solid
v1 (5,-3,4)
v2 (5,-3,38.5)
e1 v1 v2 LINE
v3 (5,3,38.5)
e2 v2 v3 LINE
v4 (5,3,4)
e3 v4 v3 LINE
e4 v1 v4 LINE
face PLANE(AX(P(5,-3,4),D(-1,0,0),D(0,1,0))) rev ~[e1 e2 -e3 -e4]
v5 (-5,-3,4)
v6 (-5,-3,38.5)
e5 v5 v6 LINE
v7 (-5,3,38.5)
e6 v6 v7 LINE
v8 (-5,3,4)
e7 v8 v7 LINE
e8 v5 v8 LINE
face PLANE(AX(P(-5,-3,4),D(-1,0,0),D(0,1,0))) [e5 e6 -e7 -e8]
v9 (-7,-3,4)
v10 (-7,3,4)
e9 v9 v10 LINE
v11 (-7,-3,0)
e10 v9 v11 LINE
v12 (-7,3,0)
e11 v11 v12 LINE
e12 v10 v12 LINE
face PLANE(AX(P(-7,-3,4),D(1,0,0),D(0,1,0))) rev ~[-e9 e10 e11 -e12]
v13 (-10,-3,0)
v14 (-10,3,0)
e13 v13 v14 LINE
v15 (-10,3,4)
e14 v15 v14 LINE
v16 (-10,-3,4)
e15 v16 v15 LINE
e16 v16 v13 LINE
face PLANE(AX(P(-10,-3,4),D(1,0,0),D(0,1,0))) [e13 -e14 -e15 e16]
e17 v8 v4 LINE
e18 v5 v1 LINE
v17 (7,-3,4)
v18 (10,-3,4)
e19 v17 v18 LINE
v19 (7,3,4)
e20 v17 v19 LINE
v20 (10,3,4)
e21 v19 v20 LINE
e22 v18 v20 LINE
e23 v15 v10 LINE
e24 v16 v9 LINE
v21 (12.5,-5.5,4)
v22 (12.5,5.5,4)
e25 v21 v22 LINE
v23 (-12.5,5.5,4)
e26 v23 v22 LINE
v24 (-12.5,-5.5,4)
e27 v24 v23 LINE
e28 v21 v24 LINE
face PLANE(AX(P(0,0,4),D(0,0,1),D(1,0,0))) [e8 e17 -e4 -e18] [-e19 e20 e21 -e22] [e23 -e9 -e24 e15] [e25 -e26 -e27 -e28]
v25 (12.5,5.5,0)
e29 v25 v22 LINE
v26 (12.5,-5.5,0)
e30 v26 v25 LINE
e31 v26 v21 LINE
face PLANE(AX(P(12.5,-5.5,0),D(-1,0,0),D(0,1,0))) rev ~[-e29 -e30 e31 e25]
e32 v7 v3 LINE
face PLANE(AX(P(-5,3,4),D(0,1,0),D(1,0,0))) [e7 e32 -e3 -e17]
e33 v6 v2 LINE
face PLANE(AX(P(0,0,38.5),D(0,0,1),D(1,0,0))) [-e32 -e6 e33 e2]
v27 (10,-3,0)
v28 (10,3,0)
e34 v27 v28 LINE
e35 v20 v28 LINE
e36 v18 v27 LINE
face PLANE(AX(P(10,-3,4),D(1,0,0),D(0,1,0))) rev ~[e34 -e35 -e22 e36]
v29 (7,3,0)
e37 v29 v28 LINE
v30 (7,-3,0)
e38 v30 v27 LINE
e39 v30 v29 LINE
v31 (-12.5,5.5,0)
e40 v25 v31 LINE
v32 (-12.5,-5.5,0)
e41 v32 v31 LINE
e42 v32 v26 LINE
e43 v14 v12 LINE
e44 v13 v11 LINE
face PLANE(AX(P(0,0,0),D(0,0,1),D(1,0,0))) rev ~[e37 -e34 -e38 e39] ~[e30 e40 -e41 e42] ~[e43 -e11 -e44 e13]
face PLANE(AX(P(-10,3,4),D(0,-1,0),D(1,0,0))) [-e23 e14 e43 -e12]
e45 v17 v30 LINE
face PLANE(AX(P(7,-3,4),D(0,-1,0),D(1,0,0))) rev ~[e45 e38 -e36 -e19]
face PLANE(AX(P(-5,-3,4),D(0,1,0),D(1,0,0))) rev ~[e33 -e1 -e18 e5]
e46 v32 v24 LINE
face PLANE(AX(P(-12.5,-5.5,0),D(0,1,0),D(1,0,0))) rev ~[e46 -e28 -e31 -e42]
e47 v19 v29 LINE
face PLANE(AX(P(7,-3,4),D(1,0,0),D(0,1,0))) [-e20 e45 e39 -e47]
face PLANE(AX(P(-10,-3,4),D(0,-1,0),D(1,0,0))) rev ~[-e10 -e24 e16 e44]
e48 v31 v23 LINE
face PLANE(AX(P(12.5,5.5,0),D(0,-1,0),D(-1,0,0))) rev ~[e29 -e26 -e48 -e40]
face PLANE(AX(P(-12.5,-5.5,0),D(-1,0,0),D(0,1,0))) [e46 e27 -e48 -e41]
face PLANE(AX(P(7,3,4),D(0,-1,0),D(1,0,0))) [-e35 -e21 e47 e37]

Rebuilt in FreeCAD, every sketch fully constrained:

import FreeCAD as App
import Part
import Sketcher
from FreeCAD import Vector


def add_polygon(sketch, points):
    """Adds a closed chain of lines whose ends are joined by coincident constraints."""
    first, n = sketch.GeometryCount, len(points)
    for a, b in zip(points, points[1:] + points[:1]):
        sketch.addGeometry(Part.LineSegment(App.Vector(*a, 0), App.Vector(*b, 0)), False)
    for i in range(n):
        sketch.addConstraint(Sketcher.Constraint("Coincident", first + i, 2, first + (i + 1) % n, 1))

doc = App.newDocument("Part")
params = doc.addObject("Spreadsheet::Sheet", "Params")
for row, (alias, value) in enumerate([
    ("sketch1_width", "15 mm"),
    ("sketch1_height", "11 mm"),
    ("pad1_length", "4 mm"),
    ("sketch2_width", "10 mm"),
    ("sketch2_height", "6 mm"),
    ("pad2_length", "34.5 mm"),
    ("sketch3_width", "25 mm"),
    ("sketch3_height", "11 mm"),
    ("pad3_length", "4 mm"),
    ("sketch4_width", "3 mm"),
    ("sketch4_height", "6 mm"),
    ("pocket1_length", "4 mm"),
], start=1):
    params.set(f"A{row}", alias)
    params.set(f"B{row}", "=" + value)
    params.setAlias(f"B{row}", alias)

body = doc.addObject("PartDesign::Body", "Body")

# Sketch on XY plane
sketch1 = body.newObject("Sketcher::SketchObject", "Sketch")
sketch1.AttachmentSupport = (doc.getObject("XY_Plane"), [""])
sketch1.MapMode = "FlatFace"
add_polygon(sketch1, [(-8, 6), (-8, -6), (8, -6), (8, 6)])  # lines 0-3
sketch1.addConstraint(Sketcher.Constraint("Vertical", 0))
sketch1.addConstraint(Sketcher.Constraint("Horizontal", 1))
sketch1.addConstraint(Sketcher.Constraint("Vertical", 2))
sketch1.addConstraint(Sketcher.Constraint("Horizontal", 3))
sketch1.addConstraint(Sketcher.Constraint("Symmetric", 0, 2, 2, 2, -1, 1))
sketch1.addConstraint(Sketcher.Constraint("DistanceX", 1, 1, 1, 2, 15.0))
sketch1.addConstraint(Sketcher.Constraint("DistanceY", 0, 2, 0, 1, 11.0))
sketch1.setExpression("Constraints[9]", "Params.sketch1_width")
sketch1.setExpression("Constraints[10]", "Params.sketch1_height")
pad1 = body.newObject("PartDesign::Pad", "Pad")
pad1.Profile = sketch1
pad1.setExpression("Length", "Params.pad1_length")

# Sketch on XY plane
sketch2 = body.newObject("Sketcher::SketchObject", "Sketch001")
sketch2.AttachmentSupport = (doc.getObject("XY_Plane"), [""])
sketch2.MapMode = "FlatFace"
sketch2.AttachmentOffset = App.Placement(Vector(0, 0, 4), App.Rotation())
add_polygon(sketch2, [(-5, 3), (-5, -3), (5, -3), (5, 3)])  # lines 0-3
sketch2.addConstraint(Sketcher.Constraint("Vertical", 0))
sketch2.addConstraint(Sketcher.Constraint("Horizontal", 1))
sketch2.addConstraint(Sketcher.Constraint("Vertical", 2))
sketch2.addConstraint(Sketcher.Constraint("Horizontal", 3))
sketch2.addConstraint(Sketcher.Constraint("Symmetric", 0, 2, 2, 2, -1, 1))
sketch2.addConstraint(Sketcher.Constraint("DistanceX", 1, 1, 1, 2, 10.0))
sketch2.addConstraint(Sketcher.Constraint("DistanceY", 0, 2, 0, 1, 6.0))
sketch2.setExpression("Constraints[9]", "Params.sketch2_width")
sketch2.setExpression("Constraints[10]", "Params.sketch2_height")
pad2 = body.newObject("PartDesign::Pad", "Pad001")
pad2.Profile = sketch2
pad2.setExpression("Length", "Params.pad2_length")

# Sketch on XY plane
sketch3 = body.newObject("Sketcher::SketchObject", "Sketch002")
sketch3.AttachmentSupport = (doc.getObject("XY_Plane"), [""])
sketch3.MapMode = "FlatFace"
add_polygon(sketch3, [(12, -6), (12, 6), (-12, 6), (-12, -6)])  # lines 0-3
sketch3.addConstraint(Sketcher.Constraint("Vertical", 0))
sketch3.addConstraint(Sketcher.Constraint("Horizontal", 1))
sketch3.addConstraint(Sketcher.Constraint("Vertical", 2))
sketch3.addConstraint(Sketcher.Constraint("Horizontal", 3))
sketch3.addConstraint(Sketcher.Constraint("Symmetric", 0, 2, 2, 2, -1, 1))
sketch3.addConstraint(Sketcher.Constraint("DistanceX", 1, 2, 1, 1, 25.0))
sketch3.addConstraint(Sketcher.Constraint("DistanceY", 0, 1, 0, 2, 11.0))
sketch3.setExpression("Constraints[9]", "Params.sketch3_width")
sketch3.setExpression("Constraints[10]", "Params.sketch3_height")
pad3 = body.newObject("PartDesign::Pad", "Pad002")
pad3.Profile = sketch3
pad3.setExpression("Length", "Params.pad3_length")

# Sketch on XY plane
sketch4 = body.newObject("Sketcher::SketchObject", "Sketch003")
sketch4.AttachmentSupport = (doc.getObject("XY_Plane"), [""])
sketch4.MapMode = "FlatFace"
sketch4.AttachmentOffset = App.Placement(Vector(0, 0, 4), App.Rotation())
add_polygon(sketch4, [(-10, 3), (-10, -3), (-7, -3), (-7, 3)])  # lines 0-3
add_polygon(sketch4, [(7, 3), (7, -3), (10, -3), (10, 3)])  # lines 4-7
sketch4.addConstraint(Sketcher.Constraint("Vertical", 0))
sketch4.addConstraint(Sketcher.Constraint("Horizontal", 1))
sketch4.addConstraint(Sketcher.Constraint("Vertical", 2))
sketch4.addConstraint(Sketcher.Constraint("Horizontal", 3))
sketch4.addConstraint(Sketcher.Constraint("Vertical", 4))
sketch4.addConstraint(Sketcher.Constraint("Horizontal", 5))
sketch4.addConstraint(Sketcher.Constraint("Vertical", 6))
sketch4.addConstraint(Sketcher.Constraint("Horizontal", 7))
sketch4.addConstraint(Sketcher.Constraint("Symmetric", 2, 2, 4, 2, -1, 1))
sketch4.addConstraint(Sketcher.Constraint("Symmetric", 0, 2, 6, 2, -1, 1))
sketch4.addConstraint(Sketcher.Constraint("Horizontal", 1, 2, 4, 2))
sketch4.addConstraint(Sketcher.Constraint("DistanceX", 1, 1, 1, 2, 3.0))
sketch4.addConstraint(Sketcher.Constraint("DistanceY", 0, 2, 0, 1, 6.0))
sketch4.addConstraint(Sketcher.Constraint("DistanceX", 0, 2, -1, 1, 10.0))
sketch4.setExpression("Constraints[19]", "Params.sketch4_width")
sketch4.setExpression("Constraints[20]", "Params.sketch4_height")
pocket1 = body.newObject("PartDesign::Pocket", "Pocket")
pocket1.Profile = sketch4
pocket1.setExpression("Length", "Params.pocket1_length")

doc.recompute()
